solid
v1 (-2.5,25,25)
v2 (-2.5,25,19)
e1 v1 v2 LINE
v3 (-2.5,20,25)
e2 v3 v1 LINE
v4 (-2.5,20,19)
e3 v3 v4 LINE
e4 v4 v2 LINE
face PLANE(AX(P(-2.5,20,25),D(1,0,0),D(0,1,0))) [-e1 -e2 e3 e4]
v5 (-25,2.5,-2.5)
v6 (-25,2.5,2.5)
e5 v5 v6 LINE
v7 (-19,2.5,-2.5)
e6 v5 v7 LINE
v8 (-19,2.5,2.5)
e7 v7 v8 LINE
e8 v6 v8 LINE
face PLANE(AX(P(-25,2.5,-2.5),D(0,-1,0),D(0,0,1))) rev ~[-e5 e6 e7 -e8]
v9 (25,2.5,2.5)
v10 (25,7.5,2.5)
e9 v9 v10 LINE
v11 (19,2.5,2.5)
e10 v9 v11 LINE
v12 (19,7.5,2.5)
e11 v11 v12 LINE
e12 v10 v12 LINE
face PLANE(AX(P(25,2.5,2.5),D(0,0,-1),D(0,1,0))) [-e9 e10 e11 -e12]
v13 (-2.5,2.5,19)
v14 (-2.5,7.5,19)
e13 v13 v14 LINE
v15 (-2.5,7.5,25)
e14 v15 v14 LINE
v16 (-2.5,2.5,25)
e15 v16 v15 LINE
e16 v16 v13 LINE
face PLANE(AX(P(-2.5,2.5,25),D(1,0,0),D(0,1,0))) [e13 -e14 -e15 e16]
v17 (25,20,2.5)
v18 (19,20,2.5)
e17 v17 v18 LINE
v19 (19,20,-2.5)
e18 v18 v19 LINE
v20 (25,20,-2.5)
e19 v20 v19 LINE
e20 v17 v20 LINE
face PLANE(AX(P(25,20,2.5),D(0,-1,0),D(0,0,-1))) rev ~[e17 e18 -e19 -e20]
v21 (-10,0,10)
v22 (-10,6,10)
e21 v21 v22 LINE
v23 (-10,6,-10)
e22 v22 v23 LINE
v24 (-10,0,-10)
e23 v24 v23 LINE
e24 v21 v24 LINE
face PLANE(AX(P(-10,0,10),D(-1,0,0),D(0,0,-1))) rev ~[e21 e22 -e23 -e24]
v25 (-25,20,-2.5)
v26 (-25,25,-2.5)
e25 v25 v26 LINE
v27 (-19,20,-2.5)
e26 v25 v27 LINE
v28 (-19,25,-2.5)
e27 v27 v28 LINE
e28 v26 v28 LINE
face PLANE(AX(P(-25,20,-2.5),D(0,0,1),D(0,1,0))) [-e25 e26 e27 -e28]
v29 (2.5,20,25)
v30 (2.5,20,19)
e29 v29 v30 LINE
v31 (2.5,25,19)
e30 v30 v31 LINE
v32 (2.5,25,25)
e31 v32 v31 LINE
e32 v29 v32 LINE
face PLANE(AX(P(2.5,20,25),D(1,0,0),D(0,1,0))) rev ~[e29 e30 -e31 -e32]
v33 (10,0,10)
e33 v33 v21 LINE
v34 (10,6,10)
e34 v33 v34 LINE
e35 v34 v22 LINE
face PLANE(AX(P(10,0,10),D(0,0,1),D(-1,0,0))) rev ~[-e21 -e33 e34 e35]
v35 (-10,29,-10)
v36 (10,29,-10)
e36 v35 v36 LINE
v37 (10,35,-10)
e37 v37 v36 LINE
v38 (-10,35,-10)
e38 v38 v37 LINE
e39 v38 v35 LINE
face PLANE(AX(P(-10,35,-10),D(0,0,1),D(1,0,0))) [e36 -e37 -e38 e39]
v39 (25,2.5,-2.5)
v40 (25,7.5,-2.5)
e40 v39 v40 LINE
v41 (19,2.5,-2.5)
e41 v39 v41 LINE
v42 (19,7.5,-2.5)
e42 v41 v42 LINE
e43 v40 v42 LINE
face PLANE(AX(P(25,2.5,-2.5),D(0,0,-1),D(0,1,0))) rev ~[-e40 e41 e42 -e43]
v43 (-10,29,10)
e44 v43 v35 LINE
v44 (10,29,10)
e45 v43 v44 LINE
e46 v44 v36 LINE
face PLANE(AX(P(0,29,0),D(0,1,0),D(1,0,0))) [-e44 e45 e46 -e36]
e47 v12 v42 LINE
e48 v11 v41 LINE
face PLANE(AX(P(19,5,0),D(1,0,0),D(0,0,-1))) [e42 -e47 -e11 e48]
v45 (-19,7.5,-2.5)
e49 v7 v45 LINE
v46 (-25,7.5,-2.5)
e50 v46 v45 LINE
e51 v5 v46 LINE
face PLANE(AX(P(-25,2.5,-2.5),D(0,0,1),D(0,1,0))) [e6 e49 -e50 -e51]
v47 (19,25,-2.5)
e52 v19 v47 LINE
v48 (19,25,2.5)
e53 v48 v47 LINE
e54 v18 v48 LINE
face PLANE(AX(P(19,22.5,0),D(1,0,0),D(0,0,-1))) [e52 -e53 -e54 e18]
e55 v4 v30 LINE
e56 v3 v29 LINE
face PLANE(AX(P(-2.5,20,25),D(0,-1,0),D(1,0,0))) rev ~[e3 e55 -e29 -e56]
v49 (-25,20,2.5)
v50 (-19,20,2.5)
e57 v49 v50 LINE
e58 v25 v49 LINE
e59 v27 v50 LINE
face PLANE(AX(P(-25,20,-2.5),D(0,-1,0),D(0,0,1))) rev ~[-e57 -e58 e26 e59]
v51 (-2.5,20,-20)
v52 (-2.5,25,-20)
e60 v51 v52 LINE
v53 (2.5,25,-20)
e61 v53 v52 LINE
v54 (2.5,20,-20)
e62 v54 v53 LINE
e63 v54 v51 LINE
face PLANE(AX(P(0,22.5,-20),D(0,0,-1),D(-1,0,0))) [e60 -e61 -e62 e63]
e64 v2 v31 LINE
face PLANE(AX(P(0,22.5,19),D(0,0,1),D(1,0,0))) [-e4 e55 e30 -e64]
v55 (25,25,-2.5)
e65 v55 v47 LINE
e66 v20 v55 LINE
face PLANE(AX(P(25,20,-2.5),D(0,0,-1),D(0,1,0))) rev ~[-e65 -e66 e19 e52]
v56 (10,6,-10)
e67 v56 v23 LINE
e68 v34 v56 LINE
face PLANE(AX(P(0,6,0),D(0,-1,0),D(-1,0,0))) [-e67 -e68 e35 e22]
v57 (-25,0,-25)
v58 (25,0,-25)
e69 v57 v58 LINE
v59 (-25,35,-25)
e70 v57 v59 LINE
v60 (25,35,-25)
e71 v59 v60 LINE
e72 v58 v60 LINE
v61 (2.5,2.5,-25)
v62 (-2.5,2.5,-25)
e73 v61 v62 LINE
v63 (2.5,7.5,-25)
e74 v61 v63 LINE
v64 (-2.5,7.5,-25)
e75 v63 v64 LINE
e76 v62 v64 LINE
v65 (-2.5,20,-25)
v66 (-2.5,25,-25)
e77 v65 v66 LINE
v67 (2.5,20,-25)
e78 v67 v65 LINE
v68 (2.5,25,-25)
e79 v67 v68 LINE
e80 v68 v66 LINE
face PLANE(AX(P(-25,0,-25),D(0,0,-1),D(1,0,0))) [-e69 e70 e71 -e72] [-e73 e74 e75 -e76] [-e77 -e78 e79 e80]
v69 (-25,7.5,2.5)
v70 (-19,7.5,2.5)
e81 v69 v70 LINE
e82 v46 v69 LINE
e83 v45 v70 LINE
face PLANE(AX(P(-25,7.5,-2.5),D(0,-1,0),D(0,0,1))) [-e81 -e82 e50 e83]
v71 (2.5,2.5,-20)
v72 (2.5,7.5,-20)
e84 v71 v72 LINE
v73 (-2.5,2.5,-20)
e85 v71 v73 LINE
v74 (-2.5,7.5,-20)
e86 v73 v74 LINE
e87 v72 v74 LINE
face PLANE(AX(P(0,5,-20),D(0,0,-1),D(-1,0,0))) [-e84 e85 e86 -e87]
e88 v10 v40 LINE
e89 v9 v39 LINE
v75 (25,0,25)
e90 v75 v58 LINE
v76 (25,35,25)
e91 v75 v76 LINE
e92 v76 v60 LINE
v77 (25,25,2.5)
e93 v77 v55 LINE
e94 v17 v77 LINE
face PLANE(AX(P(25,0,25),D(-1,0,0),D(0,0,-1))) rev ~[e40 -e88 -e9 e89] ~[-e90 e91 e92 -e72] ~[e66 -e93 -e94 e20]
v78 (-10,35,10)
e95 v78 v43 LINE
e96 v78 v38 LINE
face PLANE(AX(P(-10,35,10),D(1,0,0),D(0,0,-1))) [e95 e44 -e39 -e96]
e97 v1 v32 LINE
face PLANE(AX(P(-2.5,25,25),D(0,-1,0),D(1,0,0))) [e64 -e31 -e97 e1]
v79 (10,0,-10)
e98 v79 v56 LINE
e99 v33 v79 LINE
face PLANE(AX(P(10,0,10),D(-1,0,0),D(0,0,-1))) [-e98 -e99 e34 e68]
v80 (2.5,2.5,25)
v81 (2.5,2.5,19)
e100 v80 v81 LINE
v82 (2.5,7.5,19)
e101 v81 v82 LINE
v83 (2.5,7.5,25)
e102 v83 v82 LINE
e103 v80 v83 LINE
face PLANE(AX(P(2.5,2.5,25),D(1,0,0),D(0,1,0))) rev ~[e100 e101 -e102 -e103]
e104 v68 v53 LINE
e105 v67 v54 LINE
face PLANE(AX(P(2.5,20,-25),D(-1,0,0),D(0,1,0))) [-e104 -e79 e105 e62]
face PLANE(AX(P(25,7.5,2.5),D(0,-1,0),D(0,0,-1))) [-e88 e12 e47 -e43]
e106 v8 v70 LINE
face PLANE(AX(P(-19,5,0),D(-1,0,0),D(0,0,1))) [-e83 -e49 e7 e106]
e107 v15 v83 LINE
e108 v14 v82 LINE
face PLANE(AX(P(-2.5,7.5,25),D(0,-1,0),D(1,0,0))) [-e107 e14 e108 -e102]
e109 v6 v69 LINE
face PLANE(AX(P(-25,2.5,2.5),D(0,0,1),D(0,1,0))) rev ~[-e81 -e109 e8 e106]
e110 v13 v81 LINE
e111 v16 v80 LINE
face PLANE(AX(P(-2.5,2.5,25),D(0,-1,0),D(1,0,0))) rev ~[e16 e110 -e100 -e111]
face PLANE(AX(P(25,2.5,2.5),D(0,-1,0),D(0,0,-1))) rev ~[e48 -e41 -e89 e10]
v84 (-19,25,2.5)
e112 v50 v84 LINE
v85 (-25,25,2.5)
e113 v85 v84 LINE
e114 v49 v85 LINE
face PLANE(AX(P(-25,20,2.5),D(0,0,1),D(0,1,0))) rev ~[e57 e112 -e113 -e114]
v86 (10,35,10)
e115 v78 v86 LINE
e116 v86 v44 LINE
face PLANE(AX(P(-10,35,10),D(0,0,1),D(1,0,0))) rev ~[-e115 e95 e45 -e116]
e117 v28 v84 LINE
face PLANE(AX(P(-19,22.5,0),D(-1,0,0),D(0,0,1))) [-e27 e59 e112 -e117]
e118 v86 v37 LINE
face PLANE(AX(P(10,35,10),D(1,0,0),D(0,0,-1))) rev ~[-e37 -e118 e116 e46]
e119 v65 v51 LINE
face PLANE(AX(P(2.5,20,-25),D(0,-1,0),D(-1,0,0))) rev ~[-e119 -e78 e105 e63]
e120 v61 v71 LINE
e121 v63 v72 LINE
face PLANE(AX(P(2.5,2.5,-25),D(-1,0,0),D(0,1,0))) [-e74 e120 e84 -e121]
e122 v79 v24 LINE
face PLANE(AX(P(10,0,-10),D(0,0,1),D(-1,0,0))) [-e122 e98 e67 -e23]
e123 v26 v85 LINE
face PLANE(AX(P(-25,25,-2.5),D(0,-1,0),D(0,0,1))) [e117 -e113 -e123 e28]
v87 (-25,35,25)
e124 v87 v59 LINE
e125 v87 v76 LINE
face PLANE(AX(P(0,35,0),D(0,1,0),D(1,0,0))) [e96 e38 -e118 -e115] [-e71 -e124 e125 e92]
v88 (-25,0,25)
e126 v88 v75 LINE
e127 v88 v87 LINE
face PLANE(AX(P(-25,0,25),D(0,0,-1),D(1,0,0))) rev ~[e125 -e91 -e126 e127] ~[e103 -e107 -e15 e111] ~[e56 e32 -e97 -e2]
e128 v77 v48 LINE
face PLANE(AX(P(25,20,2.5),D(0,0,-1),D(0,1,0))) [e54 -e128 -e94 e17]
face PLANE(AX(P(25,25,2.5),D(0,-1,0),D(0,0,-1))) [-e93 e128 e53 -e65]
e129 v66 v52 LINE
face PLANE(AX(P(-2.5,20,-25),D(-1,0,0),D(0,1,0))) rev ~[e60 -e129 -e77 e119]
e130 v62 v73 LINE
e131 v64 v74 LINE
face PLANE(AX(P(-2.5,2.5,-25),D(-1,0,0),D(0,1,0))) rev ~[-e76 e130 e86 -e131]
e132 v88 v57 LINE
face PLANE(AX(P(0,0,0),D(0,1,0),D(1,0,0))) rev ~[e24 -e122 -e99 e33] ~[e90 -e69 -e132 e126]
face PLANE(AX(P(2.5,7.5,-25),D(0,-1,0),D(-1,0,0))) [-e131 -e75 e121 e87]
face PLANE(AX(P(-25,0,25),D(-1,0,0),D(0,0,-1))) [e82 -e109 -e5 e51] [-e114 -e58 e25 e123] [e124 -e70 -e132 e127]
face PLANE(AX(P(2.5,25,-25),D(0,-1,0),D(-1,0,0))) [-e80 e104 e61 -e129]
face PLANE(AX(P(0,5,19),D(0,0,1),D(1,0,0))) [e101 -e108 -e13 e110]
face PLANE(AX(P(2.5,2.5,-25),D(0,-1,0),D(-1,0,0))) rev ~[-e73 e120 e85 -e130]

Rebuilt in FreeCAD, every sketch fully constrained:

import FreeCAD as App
import Part
import Sketcher

V = App.Vector
Q = App.Units.Quantity


def add_polygon(sketch, points):
    """Adds a closed chain of lines whose ends are joined by coincident constraints."""
    first, n = sketch.GeometryCount, len(points)
    for a, b in zip(points, points[1:] + points[:1]):
        sketch.addGeometry(Part.LineSegment(App.Vector(*a, 0), App.Vector(*b, 0)), False)
    for i in range(n):
        sketch.addConstraint(Sketcher.Constraint("Coincident", first + i, 2, first + (i + 1) % n, 1))

doc = App.newDocument("Part")
body = doc.addObject("PartDesign::Body", "Body")

sketch1 = body.newObject("Sketcher::SketchObject", "Sketch")
sketch1.AttachmentSupport = (doc.getObject("XZ_Plane"), [""])
sketch1.MapMode = "FlatFace"
add_polygon(sketch1, [(-25, -25), (-25, 25), (25, 25), (25, -25)])
sketch1.addConstraint([
    Sketcher.Constraint("Vertical", 0),
    Sketcher.Constraint("Horizontal", 1),
    Sketcher.Constraint("Vertical", 2),
    Sketcher.Constraint("Horizontal", 3),
    Sketcher.Constraint("Symmetric", 0, 2, 2, 2, -1, 1),
    Sketcher.Constraint("Equal", 3, 0),
    Sketcher.Constraint("DistanceX", 1, 1, 1, 2, Q("50 mm")),
])
pad1 = body.newObject("PartDesign::Pad", "Pad")
pad1.Profile = sketch1
pad1.Length = 35
pad1.Reversed = True

sketch2 = body.newObject("Sketcher::SketchObject", "Sketch001")
sketch2.AttachmentSupport = (doc.getObject("YZ_Plane"), [""])
sketch2.MapMode = "FlatFace"
sketch2.AttachmentOffset = App.Placement(V(0, 0, -25), App.Rotation())
add_polygon(sketch2, [(8, -2), (2, -2), (2, 2), (8, 2)])
add_polygon(sketch2, [(25, -2), (20, -2), (20, 2), (25, 2)])
sketch2.addConstraint([
    Sketcher.Constraint("Horizontal", 0),
    Sketcher.Constraint("Vertical", 1),
    Sketcher.Constraint("Horizontal", 2),
    Sketcher.Constraint("Vertical", 3),
    Sketcher.Constraint("Horizontal", 4),
    Sketcher.Constraint("Vertical", 5),
    Sketcher.Constraint("Horizontal", 6),
    Sketcher.Constraint("Vertical", 7),
    Sketcher.Constraint("Horizontal", 3, 2, 4, 2),
    Sketcher.Constraint("Horizontal", 2, 2, 5, 2),
    Sketcher.Constraint("Equal", 2, 4),
    Sketcher.Constraint("Equal", 6, 1),
    Sketcher.Constraint("DistanceX", 0, 2, 0, 1, Q("5 mm")),
    Sketcher.Constraint("DistanceX", -1, 1, 4, 2, Q("20 mm")),
    Sketcher.Constraint("DistanceX", -1, 1, 0, 2, Q("2.5 mm")),
    Sketcher.Constraint("DistanceY", 0, 2, -1, 1, Q("2.5 mm")),
])
pocket1 = body.newObject("PartDesign::Pocket", "Pocket")
pocket1.Profile = sketch2
pocket1.Length = 6
pocket1.Reversed = True

sketch3 = body.newObject("Sketcher::SketchObject", "Sketch002")
sketch3.AttachmentSupport = (doc.getObject("XY_Plane"), [""])
sketch3.MapMode = "FlatFace"
sketch3.AttachmentOffset = App.Placement(V(0, 0, -25), App.Rotation())
add_polygon(sketch3, [(2, 8), (2, 2), (-2, 2), (-2, 8)])
add_polygon(sketch3, [(2, 25), (2, 20), (-2, 20), (-2, 25)])
sketch3.addConstraint([
    Sketcher.Constraint("Vertical", 0),
    Sketcher.Constraint("Horizontal", 1),
    Sketcher.Constraint("Vertical", 2),
    Sketcher.Constraint("Horizontal", 3),
    Sketcher.Constraint("Vertical", 4),
    Sketcher.Constraint("Horizontal", 5),
    Sketcher.Constraint("Vertical", 6),
    Sketcher.Constraint("Horizontal", 7),
    Sketcher.Constraint("Vertical", 3, 2, 4, 2),
    Sketcher.Constraint("Vertical", 2, 2, 5, 2),
    Sketcher.Constraint("Equal", 7, 0),
    Sketcher.Constraint("Equal", 2, 4),
    Sketcher.Constraint("DistanceX", 1, 2, 1, 1, Q("5 mm")),
    Sketcher.Constraint("DistanceY", -1, 1, 4, 2, Q("20 mm")),
    Sketcher.Constraint("DistanceX", -1, 1, 0, 2, Q("2.5 mm")),
    Sketcher.Constraint("DistanceY", -1, 1, 0, 2, Q("2.5 mm")),
])
pocket2 = body.newObject("PartDesign::Pocket", "Pocket001")
pocket2.Profile = sketch3
pocket2.Length = 5
pocket2.Reversed = True

sketch4 = body.newObject("Sketcher::SketchObject", "Sketch003")
sketch4.AttachmentSupport = (doc.getObject("YZ_Plane"), [""])
sketch4.MapMode = "FlatFace"
sketch4.AttachmentOffset = App.Placement(V(0, 0, 25), App.Rotation())
add_polygon(sketch4, [(8, 2), (2, 2), (2, -2), (8, -2)])
add_polygon(sketch4, [(25, 2), (20, 2), (20, -2), (25, -2)])
sketch4.addConstraint([
    Sketcher.Constraint("Horizontal", 0),
    Sketcher.Constraint("Vertical", 1),
    Sketcher.Constraint("Horizontal", 2),
    Sketcher.Constraint("Vertical", 3),
    Sketcher.Constraint("Horizontal", 4),
    Sketcher.Constraint("Vertical", 5),
    Sketcher.Constraint("Horizontal", 6),
    Sketcher.Constraint("Vertical", 7),
    Sketcher.Constraint("Horizontal", 3, 2, 4, 2),
    Sketcher.Constraint("Horizontal", 2, 2, 5, 2),
    Sketcher.Constraint("Equal", 2, 4),
    Sketcher.Constraint("Equal", 6, 1),
    Sketcher.Constraint("DistanceX", 0, 2, 0, 1, Q("5 mm")),
    Sketcher.Constraint("DistanceX", -1, 1, 4, 2, Q("20 mm")),
    Sketcher.Constraint("DistanceX", -1, 1, 0, 2, Q("2.5 mm")),
    Sketcher.Constraint("DistanceY", -1, 1, 0, 2, Q("2.5 mm")),
])
pocket3 = body.newObject("PartDesign::Pocket", "Pocket002")
pocket3.Profile = sketch4
pocket3.Length = 6

sketch5 = body.newObject("Sketcher::SketchObject", "Sketch004")
sketch5.AttachmentSupport = (doc.getObject("XY_Plane"), [""])
sketch5.MapMode = "FlatFace"
sketch5.AttachmentOffset = App.Placement(V(0, 0, 25), App.Rotation())
add_polygon(sketch5, [(-2, 8), (-2, 2), (2, 2), (2, 8)])
add_polygon(sketch5, [(-2, 25), (-2, 20), (2, 20), (2, 25)])
sketch5.addConstraint([
    Sketcher.Constraint("Vertical", 0),
    Sketcher.Constraint("Horizontal", 1),
    Sketcher.Constraint("Vertical", 2),
    Sketcher.Constraint("Horizontal", 3),
    Sketcher.Constraint("Vertical", 4),
    Sketcher.Constraint("Horizontal", 5),
    Sketcher.Constraint("Vertical", 6),
    Sketcher.Constraint("Horizontal", 7),
    Sketcher.Constraint("Vertical", 3, 2, 4, 2),
    Sketcher.Constraint("Vertical", 2, 2, 5, 2),
    Sketcher.Constraint("Equal", 7, 0),
    Sketcher.Constraint("Equal", 2, 4),
    Sketcher.Constraint("DistanceX", 1, 1, 1, 2, Q("5 mm")),
    Sketcher.Constraint("DistanceY", -1, 1, 4, 2, Q("20 mm")),
    Sketcher.Constraint("DistanceX", 0, 2, -1, 1, Q("2.5 mm")),
    Sketcher.Constraint("DistanceY", -1, 1, 0, 2, Q("2.5 mm")),
])
pocket4 = body.newObject("PartDesign::Pocket", "Pocket003")
pocket4.Profile = sketch5
pocket4.Length = 6

sketch6 = body.newObject("Sketcher::SketchObject", "Sketch005")
sketch6.AttachmentSupport = (doc.getObject("XZ_Plane"), [""])
sketch6.MapMode = "FlatFace"
add_polygon(sketch6, [(10, -10), (10, 10), (-10, 10), (-10, -10)])
sketch6.addConstraint([
    Sketcher.Constraint("Vertical", 0),
    Sketcher.Constraint("Horizontal", 1),
    Sketcher.Constraint("Vertical", 2),
    Sketcher.Constraint("Horizontal", 3),
    Sketcher.Constraint("Symmetric", 0, 2, 2, 2, -1, 1),
    Sketcher.Constraint("Equal", 3, 0),
    Sketcher.Constraint("DistanceX", 1, 2, 1, 1, Q("20 mm")),
])
pocket5 = body.newObject("PartDesign::Pocket", "Pocket004")
pocket5.Profile = sketch6
pocket5.Length = 6

sketch7 = body.newObject("Sketcher::SketchObject", "Sketch006")
sketch7.AttachmentSupport = (doc.getObject("XZ_Plane"), [""])
sketch7.MapMode = "FlatFace"
sketch7.AttachmentOffset = App.Placement(V(0, 0, -35), App.Rotation())
add_polygon(sketch7, [(-10, -10), (-10, 10), (10, 10), (10, -10)])
sketch7.addConstraint([
    Sketcher.Constraint("Vertical", 0),
    Sketcher.Constraint("Horizontal", 1),
    Sketcher.Constraint("Vertical", 2),
    Sketcher.Constraint("Horizontal", 3),
    Sketcher.Constraint("Symmetric", 0, 2, 2, 2, -1, 1),
    Sketcher.Constraint("Equal", 3, 0),
    Sketcher.Constraint("DistanceX", 1, 1, 1, 2, Q("20 mm")),
])
pocket6 = body.newObject("PartDesign::Pocket", "Pocket005")
pocket6.Profile = sketch7
pocket6.Length = 6
pocket6.Reversed = True

doc.recompute()
